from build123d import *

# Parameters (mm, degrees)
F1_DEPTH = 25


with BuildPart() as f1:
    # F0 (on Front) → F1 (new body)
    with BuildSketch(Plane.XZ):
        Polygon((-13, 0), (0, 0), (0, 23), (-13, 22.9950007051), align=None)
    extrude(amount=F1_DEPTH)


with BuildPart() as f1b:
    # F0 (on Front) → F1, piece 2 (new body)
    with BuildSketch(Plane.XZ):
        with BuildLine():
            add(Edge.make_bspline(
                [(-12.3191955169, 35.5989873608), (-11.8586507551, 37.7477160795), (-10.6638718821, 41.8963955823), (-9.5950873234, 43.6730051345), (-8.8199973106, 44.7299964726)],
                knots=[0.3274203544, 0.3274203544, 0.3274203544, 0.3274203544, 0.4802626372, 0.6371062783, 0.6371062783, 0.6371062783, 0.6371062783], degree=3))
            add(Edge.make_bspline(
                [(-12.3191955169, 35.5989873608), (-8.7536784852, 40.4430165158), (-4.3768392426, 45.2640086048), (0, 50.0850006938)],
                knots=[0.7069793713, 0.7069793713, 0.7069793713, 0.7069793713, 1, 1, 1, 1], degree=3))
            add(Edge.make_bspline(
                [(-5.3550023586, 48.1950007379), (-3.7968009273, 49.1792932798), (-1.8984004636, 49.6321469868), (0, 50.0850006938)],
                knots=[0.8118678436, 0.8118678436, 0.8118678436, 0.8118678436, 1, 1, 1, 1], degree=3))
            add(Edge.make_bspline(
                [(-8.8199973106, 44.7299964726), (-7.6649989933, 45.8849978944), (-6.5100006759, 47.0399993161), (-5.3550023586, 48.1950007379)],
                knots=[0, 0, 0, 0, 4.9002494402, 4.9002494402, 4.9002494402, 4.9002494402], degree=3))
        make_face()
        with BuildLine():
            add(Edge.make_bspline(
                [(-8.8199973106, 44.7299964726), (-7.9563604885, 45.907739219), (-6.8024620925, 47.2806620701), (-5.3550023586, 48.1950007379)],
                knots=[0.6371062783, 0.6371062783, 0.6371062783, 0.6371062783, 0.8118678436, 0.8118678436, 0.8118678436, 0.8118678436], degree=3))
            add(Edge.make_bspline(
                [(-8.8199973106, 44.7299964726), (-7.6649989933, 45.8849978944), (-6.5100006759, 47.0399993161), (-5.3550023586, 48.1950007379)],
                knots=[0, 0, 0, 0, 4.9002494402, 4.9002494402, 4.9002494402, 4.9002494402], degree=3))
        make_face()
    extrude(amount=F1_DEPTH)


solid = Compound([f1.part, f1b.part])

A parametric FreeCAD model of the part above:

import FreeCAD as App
import Part
import Sketcher
Q = App.Units.Quantity

doc = App.newDocument("Part")
params = doc.addObject("Spreadsheet::Sheet", "Params")
for row, (alias, value) in enumerate([
    ("sketch1_width", "13 mm"),
    ("sketch1_height", "23 mm"),
    ("pad1_length", "25 mm"),
    ("pad2_length", "25 mm"),
], start=1):
    params.set(f"A{row}", alias)
    params.set(f"B{row}", "=" + value)
    params.setAlias(f"B{row}", alias)

body = doc.addObject("PartDesign::Body", "Body")

# Sketch on XZ plane
sketch1 = body.newObject("Sketcher::SketchObject", "Sketch")
sketch1.AttachmentSupport = (doc.getObject("XZ_Plane"), [""])
sketch1.MapMode = "FlatFace"
sketch1.addGeometry([
    Part.LineSegment(App.Vector(-13, 0, 0), App.Vector(0, 0, 0)),
    Part.LineSegment(App.Vector(0, 0, 0), App.Vector(0, 23, 0)),
    Part.LineSegment(App.Vector(0, 23, 0), App.Vector(-13, 23, 0)),
    Part.LineSegment(App.Vector(-13, 23, 0), App.Vector(-13, 0, 0)),
], False)
sketch1.addConstraint([
    Sketcher.Constraint("Coincident", 0, 2, 1, 1),
    Sketcher.Constraint("Coincident", 1, 2, 2, 1),
    Sketcher.Constraint("Coincident", 2, 2, 3, 1),
    Sketcher.Constraint("Coincident", 3, 2, 0, 1),
    Sketcher.Constraint("Horizontal", 0),
    Sketcher.Constraint("Vertical", 1),
    Sketcher.Constraint("Vertical", 3),
    Sketcher.Constraint("Coincident", 0, 2, -1, 1),
    Sketcher.Constraint("DistanceX", 0, 1, 0, 2, Q("13 mm")),
    Sketcher.Constraint("DistanceY", 1, 1, 1, 2, Q("23 mm")),
    Sketcher.Constraint("DistanceY", 3, 2, 3, 1, Q("22.995001 mm")),
])
sketch1.setExpression("Constraints[8]", "Params.sketch1_width")
sketch1.setExpression("Constraints[9]", "Params.sketch1_height")
pad1 = body.newObject("PartDesign::Pad", "Pad")
pad1.Profile = sketch1
pad1.setExpression("Length", "Params.pad1_length")
body2 = doc.addObject("PartDesign::Body", "Body001")

# Sketch on XZ plane
sketch2 = body2.newObject("Sketcher::SketchObject", "Sketch001")
sketch2.AttachmentSupport = (doc.getObject("XZ_Plane001"), [""])
sketch2.MapMode = "FlatFace"
sketch2.addGeometry([
    Part.BSplineCurve([App.Vector(-12.319196, 35.598987, 0), App.Vector(-11.858651, 37.747716, 0), App.Vector(-10.663872, 41.896396, 0), App.Vector(-9.595087, 43.673005, 0), App.Vector(-8.819997, 44.729996, 0)], [4, 1, 4], [0.327420354, 0.480262637, 0.637106278], False, 3, [1, 1, 1, 1, 1], False),
    Part.BSplineCurve([App.Vector(-12.319196, 35.598987, 0), App.Vector(-8.753678, 40.443017, 0), App.Vector(-4.376839, 45.264009, 0), App.Vector(0, 50.085001, 0)], [4, 4], [0.706979371, 1], False, 3, [1, 1, 1, 1], False),
    Part.BSplineCurve([App.Vector(-5.355002, 48.195001, 0), App.Vector(-3.796801, 49.179293, 0), App.Vector(-1.8984, 49.632147, 0), App.Vector(0, 50.085001, 0)], [4, 4], [0.811867844, 1], False, 3, [1, 1, 1, 1], False),
    Part.BSplineCurve([App.Vector(-8.819997, 44.729996, 0), App.Vector(-7.95636, 45.907739, 0), App.Vector(-6.802462, 47.280662, 0), App.Vector(-5.355002, 48.195001, 0)], [4, 4], [0.637106278, 0.811867844], False, 3, [1, 1, 1, 1], False),
], False)
sketch2.addConstraint([
    Sketcher.Constraint("Block", 0),
    Sketcher.Constraint("Block", 1),
    Sketcher.Constraint("Block", 2),
    Sketcher.Constraint("Block", 3),
])
pad2 = body2.newObject("PartDesign::Pad", "Pad001")
pad2.Profile = sketch2
pad2.setExpression("Length", "Params.pad2_length")

doc.recompute()
